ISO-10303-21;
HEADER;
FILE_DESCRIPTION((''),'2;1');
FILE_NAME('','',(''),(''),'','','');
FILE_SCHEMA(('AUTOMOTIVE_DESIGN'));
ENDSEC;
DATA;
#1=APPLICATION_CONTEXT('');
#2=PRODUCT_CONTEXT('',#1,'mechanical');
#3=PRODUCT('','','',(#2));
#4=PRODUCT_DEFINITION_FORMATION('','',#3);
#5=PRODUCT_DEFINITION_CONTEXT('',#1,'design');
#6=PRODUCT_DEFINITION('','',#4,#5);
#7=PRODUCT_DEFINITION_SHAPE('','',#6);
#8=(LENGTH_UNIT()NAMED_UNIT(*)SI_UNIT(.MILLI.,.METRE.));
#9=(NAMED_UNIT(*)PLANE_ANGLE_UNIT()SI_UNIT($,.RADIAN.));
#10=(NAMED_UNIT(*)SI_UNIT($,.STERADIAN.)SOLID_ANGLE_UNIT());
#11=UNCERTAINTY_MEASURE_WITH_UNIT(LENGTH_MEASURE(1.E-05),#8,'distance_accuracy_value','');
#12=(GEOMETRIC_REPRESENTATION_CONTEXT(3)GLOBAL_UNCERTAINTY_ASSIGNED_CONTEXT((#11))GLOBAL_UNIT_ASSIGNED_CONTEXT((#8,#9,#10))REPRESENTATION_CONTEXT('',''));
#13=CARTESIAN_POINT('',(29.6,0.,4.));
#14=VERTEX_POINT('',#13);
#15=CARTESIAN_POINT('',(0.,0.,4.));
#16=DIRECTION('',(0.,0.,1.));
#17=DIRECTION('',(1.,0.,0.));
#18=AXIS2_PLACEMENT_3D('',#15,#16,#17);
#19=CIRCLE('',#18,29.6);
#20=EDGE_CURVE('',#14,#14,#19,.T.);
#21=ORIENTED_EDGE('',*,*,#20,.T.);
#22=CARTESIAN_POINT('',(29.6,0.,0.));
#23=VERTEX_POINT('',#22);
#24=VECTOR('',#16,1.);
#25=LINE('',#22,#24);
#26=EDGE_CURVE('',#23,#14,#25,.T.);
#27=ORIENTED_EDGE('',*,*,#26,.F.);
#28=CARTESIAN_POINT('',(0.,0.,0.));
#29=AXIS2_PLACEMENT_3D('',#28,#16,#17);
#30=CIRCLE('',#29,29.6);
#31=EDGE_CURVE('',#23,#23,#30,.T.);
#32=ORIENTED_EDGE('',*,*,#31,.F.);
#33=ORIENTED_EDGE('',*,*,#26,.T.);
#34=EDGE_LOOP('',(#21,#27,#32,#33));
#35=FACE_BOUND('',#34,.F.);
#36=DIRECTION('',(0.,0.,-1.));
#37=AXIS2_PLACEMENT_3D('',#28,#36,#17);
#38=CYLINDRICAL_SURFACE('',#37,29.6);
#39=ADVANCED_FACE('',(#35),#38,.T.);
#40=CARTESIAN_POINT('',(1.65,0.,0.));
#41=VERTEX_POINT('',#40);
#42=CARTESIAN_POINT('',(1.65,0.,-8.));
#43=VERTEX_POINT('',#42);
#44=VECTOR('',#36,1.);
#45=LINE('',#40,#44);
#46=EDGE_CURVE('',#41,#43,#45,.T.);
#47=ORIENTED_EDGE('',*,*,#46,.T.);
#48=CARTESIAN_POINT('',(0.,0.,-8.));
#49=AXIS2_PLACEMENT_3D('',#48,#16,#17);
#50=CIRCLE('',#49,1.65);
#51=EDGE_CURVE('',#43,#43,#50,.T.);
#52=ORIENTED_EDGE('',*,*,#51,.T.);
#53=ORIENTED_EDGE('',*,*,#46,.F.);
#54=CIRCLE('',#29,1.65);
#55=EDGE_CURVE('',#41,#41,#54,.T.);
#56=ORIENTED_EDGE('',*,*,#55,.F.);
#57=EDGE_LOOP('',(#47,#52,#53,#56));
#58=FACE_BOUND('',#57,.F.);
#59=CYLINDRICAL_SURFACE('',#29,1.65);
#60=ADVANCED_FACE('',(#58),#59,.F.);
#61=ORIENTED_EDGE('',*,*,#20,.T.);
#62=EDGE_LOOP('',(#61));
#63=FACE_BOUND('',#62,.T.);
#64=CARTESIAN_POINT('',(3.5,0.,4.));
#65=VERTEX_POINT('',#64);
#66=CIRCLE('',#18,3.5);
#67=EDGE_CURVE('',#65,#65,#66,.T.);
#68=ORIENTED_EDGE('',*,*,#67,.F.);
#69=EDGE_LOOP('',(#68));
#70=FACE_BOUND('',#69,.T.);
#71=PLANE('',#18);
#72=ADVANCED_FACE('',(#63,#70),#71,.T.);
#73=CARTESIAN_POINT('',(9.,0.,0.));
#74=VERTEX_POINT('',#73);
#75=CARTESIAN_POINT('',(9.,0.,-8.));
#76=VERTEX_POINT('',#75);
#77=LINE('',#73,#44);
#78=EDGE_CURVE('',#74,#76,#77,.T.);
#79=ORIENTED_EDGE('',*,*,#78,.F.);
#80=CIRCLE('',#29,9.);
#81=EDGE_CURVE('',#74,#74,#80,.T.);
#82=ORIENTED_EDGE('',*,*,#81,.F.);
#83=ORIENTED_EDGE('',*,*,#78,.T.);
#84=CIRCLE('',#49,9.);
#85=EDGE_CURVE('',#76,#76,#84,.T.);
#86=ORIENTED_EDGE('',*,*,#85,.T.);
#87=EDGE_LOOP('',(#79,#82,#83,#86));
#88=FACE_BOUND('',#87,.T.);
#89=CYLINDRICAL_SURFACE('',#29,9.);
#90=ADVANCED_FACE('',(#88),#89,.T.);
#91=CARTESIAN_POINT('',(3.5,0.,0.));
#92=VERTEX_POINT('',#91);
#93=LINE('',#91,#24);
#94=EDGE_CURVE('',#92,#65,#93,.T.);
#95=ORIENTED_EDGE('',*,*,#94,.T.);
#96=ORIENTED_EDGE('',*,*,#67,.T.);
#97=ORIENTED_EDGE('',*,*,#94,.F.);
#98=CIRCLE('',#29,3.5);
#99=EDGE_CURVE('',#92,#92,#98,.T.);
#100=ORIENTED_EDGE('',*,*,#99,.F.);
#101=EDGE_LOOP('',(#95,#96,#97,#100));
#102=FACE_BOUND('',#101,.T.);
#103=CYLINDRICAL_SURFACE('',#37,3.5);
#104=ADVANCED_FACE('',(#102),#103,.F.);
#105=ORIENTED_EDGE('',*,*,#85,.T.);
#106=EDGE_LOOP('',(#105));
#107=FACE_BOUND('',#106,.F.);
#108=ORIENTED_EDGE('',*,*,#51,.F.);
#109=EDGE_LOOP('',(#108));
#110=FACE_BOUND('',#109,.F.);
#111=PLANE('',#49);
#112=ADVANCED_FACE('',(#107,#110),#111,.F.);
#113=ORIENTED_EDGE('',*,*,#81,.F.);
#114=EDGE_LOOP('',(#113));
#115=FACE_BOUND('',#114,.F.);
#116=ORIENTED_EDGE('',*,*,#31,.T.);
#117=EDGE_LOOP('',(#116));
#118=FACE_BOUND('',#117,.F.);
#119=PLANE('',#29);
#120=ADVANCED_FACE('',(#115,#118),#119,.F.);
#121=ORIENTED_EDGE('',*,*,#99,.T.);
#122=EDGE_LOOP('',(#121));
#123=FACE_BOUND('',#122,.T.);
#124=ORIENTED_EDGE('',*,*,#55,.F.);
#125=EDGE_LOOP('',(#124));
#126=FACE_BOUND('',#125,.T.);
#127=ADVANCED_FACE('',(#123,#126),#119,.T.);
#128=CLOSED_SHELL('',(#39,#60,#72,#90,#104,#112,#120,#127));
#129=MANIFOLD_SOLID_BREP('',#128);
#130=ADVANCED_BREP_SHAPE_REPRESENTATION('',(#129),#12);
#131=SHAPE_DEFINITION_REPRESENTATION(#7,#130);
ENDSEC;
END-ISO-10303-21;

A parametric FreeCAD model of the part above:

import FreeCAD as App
import Part
import Sketcher
Q = App.Units.Quantity

doc = App.newDocument("Part")
body = doc.addObject("PartDesign::Body", "Body")

# Sketch on XY plane
sketch1 = body.newObject("Sketcher::SketchObject", "Sketch")
sketch1.AttachmentSupport = (doc.getObject("XY_Plane"), [""])
sketch1.MapMode = "FlatFace"
sketch1.addGeometry([
    Part.Circle(App.Vector(0, 0, 0), App.Vector(0, 0, 1), 29.6),
    Part.Circle(App.Vector(0, 0, 0), App.Vector(0, 0, 1), 3.5),
], False)
sketch1.addConstraint([
    Sketcher.Constraint("Coincident", 0, 3, -1, 1),
    Sketcher.Constraint("Coincident", 1, 3, -1, 1),
    Sketcher.Constraint("Diameter", 1, Q("7 mm")),
    Sketcher.Constraint("Diameter", 0, Q("59.2 mm")),
])
pad1 = body.newObject("PartDesign::Pad", "Pad")
pad1.Profile = sketch1
pad1.Length = 4

# Sketch on XY plane
sketch2 = body.newObject("Sketcher::SketchObject", "Sketch001")
sketch2.AttachmentSupport = (doc.getObject("XY_Plane"), [""])
sketch2.MapMode = "FlatFace"
sketch2.addGeometry([
    Part.Circle(App.Vector(0, 0, 0), App.Vector(0, 0, 1), 9),
    Part.Circle(App.Vector(0, 0, 0), App.Vector(0, 0, 1), 1.6),
], False)
sketch2.addConstraint([
    Sketcher.Constraint("Coincident", 0, 3, -1, 1),
    Sketcher.Constraint("Coincident", 1, 3, -1, 1),
    Sketcher.Constraint("Diameter", 0, Q("18 mm")),
    Sketcher.Constraint("Diameter", 1, Q("3.3 mm")),
])
pad2 = body.newObject("PartDesign::Pad", "Pad001")
pad2.Profile = sketch2
pad2.Length = 8
pad2.Reversed = True

doc.recompute()
